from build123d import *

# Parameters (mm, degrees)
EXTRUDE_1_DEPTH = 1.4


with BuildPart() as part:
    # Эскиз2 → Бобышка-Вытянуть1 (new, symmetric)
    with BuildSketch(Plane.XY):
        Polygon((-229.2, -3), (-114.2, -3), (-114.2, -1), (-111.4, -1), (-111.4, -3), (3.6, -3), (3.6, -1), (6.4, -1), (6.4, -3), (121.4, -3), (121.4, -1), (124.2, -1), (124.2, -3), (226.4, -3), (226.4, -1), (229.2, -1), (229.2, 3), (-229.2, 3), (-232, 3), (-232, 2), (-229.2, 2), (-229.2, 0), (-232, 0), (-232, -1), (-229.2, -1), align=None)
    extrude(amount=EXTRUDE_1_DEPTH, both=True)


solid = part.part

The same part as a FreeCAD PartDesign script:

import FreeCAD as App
import Part
import Sketcher

V = App.Vector


def add_polygon(sketch, points):
    """Adds a closed chain of lines whose ends are joined by coincident constraints."""
    first, n = sketch.GeometryCount, len(points)
    for a, b in zip(points, points[1:] + points[:1]):
        sketch.addGeometry(Part.LineSegment(App.Vector(*a, 0), App.Vector(*b, 0)), False)
    for i in range(n):
        sketch.addConstraint(Sketcher.Constraint("Coincident", first + i, 2, first + (i + 1) % n, 1))

doc = App.newDocument("Part")
params = doc.addObject("Spreadsheet::Sheet", "Params")
for row, (alias, value) in enumerate([
    ("sketch1_width", "115 mm"),
    ("sketch1_height", "2 mm"),
    ("sketch1_height2", "4 mm"),
    ("sketch1_width2", "2.8 mm"),
    ("sketch1_width3", "102.2 mm"),
    ("pad1_length", "2.8 mm"),
], start=1):
    params.set(f"A{row}", alias)
    params.set(f"B{row}", "=" + value)
    params.setAlias(f"B{row}", alias)

body = doc.addObject("PartDesign::Body", "Body")

sketch1 = body.newObject("Sketcher::SketchObject", "Sketch")
sketch1.AttachmentSupport = (doc.getObject("XY_Plane"), [""])
sketch1.MapMode = "FlatFace"
add_polygon(sketch1, [(-229.2, -3), (-114.2, -3), (-114.2, -1), (-111.4, -1), (-111.4, -3), (3.6, -3), (3.6, -1), (6.4, -1), (6.4, -3), (121.4, -3), (121.4, -1), (124.2, -1), (124.2, -3), (226.4, -3), (226.4, -1), (229.2, -1), (229.2, 3), (-232, 3), (-232, 2), (-229.2, 2), (-229.2, 0), (-232, 0), (-232, -1), (-229.2, -1)])
sketch1.addConstraint([
    Sketcher.Constraint("Horizontal", 0),
    Sketcher.Constraint("Vertical", 1),
    Sketcher.Constraint("Horizontal", 2),
    Sketcher.Constraint("Vertical", 3),
    Sketcher.Constraint("Horizontal", 4),
    Sketcher.Constraint("Vertical", 5),
    Sketcher.Constraint("Horizontal", 6),
    Sketcher.Constraint("Vertical", 7),
    Sketcher.Constraint("Horizontal", 8),
    Sketcher.Constraint("Vertical", 9),
    Sketcher.Constraint("Horizontal", 10),
    Sketcher.Constraint("Vertical", 11),
    Sketcher.Constraint("Horizontal", 12),
    Sketcher.Constraint("Vertical", 13),
    Sketcher.Constraint("Horizontal", 14),
    Sketcher.Constraint("Vertical", 15),
    Sketcher.Constraint("Horizontal", 16),
    Sketcher.Constraint("Vertical", 17),
    Sketcher.Constraint("Horizontal", 18),
    Sketcher.Constraint("Vertical", 19),
    Sketcher.Constraint("Horizontal", 20),
    Sketcher.Constraint("Vertical", 21),
    Sketcher.Constraint("Horizontal", 22),
    Sketcher.Constraint("Vertical", 23),
    Sketcher.Constraint("Symmetric", 15, 2, 23, 2, -1, 1),
    Sketcher.Constraint("PointOnObject", 19, 2, -1),
    Sketcher.Constraint("Horizontal", 0, 2, 3, 2),
    Sketcher.Constraint("Horizontal", 2, 2, 5, 2),
    Sketcher.Constraint("Horizontal", 4, 2, 7, 2),
    Sketcher.Constraint("Horizontal", 6, 2, 9, 2),
    Sketcher.Constraint("Horizontal", 8, 2, 11, 2),
    Sketcher.Constraint("Horizontal", 10, 2, 13, 2),
    Sketcher.Constraint("Horizontal", 14, 2, 21, 2),
    Sketcher.Constraint("Vertical", 17, 2, 20, 2),
    Sketcher.Constraint("Vertical", 19, 2, 22, 2),
    Sketcher.Constraint("Equal", 0, 4),
    Sketcher.Constraint("Equal", 2, 6),
    Sketcher.Constraint("Equal", 4, 8),
    Sketcher.Constraint("Equal", 6, 10),
    Sketcher.Constraint("Equal", 10, 14),
    Sketcher.Constraint("Equal", 14, 18),
    Sketcher.Constraint("Equal", 13, 19),
    Sketcher.Constraint("DistanceX", 0, 1, 0, 2, 115.0),
    Sketcher.Constraint("DistanceY", 1, 1, 1, 2, 2.0),
    Sketcher.Constraint("DistanceY", 15, 1, 15, 2, 4.0),
    Sketcher.Constraint("DistanceX", 2, 1, 2, 2, 2.8),
    Sketcher.Constraint("DistanceX", 12, 1, 12, 2, 102.2),
])
sketch1.setExpression("Constraints[66]", "Params.sketch1_width")
sketch1.setExpression("Constraints[67]", "Params.sketch1_height")
sketch1.setExpression("Constraints[68]", "Params.sketch1_height2")
sketch1.setExpression("Constraints[69]", "Params.sketch1_width2")
sketch1.setExpression("Constraints[70]", "Params.sketch1_width3")
pad1 = body.newObject("PartDesign::Pad", "Pad")
pad1.Profile = sketch1
pad1.setExpression("Length", "Params.pad1_length")
pad1.Midplane = True

doc.recompute()
